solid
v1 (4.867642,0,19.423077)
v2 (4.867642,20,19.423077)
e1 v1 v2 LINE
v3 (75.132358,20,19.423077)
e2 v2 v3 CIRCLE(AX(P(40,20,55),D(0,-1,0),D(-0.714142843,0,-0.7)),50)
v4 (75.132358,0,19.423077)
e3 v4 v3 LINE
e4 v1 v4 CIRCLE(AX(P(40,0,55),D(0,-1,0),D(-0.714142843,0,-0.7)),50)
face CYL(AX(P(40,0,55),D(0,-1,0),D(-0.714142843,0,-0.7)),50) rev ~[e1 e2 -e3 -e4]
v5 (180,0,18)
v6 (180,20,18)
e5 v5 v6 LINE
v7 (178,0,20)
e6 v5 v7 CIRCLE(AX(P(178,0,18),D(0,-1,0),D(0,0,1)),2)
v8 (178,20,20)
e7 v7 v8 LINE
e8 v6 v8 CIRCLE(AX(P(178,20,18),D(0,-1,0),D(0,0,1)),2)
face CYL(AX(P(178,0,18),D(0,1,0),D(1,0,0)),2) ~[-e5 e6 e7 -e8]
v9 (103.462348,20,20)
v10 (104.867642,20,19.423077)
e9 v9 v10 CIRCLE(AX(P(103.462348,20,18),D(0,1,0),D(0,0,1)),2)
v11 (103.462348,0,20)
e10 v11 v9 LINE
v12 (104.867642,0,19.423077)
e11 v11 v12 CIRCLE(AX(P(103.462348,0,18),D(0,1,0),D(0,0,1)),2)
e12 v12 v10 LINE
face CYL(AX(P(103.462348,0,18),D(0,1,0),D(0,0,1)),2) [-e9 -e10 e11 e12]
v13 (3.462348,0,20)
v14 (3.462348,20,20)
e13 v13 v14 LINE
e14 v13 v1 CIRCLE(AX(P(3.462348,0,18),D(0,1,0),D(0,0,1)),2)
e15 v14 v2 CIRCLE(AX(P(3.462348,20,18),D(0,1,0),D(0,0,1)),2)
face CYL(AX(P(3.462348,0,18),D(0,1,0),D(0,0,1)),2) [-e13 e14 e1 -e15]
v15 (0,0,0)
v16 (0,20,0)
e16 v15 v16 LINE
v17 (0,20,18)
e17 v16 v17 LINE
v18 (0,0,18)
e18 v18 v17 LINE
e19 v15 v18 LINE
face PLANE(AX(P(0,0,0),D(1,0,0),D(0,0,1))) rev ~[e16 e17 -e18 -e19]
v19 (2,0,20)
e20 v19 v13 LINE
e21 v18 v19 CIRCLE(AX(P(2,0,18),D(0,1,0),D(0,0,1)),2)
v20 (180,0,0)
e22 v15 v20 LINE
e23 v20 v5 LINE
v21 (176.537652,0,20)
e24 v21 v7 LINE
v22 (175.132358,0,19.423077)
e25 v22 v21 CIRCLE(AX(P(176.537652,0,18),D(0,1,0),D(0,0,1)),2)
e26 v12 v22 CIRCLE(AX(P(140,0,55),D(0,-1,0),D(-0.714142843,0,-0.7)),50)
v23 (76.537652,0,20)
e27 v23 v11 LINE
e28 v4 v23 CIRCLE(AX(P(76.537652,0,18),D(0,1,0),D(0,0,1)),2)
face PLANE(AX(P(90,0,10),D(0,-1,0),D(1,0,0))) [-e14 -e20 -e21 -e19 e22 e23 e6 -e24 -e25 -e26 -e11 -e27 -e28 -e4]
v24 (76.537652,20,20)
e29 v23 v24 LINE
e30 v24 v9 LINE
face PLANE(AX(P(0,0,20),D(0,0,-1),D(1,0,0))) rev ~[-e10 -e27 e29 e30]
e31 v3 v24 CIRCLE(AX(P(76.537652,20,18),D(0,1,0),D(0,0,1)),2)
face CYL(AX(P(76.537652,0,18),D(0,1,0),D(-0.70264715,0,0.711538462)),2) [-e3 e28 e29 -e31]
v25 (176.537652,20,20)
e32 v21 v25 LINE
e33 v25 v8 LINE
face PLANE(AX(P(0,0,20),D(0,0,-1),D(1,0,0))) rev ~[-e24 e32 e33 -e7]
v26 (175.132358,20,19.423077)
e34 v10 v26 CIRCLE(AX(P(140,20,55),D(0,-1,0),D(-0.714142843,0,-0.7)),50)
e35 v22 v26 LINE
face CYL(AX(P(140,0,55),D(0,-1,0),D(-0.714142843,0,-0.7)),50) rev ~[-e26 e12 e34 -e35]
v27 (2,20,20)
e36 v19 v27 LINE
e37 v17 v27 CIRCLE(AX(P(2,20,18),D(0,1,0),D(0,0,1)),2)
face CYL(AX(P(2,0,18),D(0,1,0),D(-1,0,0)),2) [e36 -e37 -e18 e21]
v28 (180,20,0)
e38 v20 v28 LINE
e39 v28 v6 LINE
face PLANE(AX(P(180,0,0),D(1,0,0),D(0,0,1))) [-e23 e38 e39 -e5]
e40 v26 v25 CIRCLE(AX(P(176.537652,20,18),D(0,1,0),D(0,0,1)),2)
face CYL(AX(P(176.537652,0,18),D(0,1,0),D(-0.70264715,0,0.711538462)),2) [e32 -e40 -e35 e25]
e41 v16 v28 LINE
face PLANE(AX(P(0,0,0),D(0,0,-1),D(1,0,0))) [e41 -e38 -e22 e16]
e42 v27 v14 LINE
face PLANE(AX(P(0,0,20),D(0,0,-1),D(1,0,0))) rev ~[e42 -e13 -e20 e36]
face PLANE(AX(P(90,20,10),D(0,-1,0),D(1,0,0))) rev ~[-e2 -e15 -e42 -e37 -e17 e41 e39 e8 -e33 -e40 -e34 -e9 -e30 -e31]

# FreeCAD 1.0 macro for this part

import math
import FreeCAD as App
import Part
import Sketcher

V = App.Vector


def edges_at(feature, points):
    """Names of the edges that pass closest to the given points."""
    edges = feature.Shape.Edges
    near = lambda p: min(range(len(edges)), key=lambda i: edges[i].distToShape(Part.Vertex(*p))[0])
    return sorted({f"Edge{near(p) + 1}" for p in points})


def add_polygon(sketch, points):
    """Adds a closed chain of lines whose ends are joined by coincident constraints."""
    first, n = sketch.GeometryCount, len(points)
    for a, b in zip(points, points[1:] + points[:1]):
        sketch.addGeometry(Part.LineSegment(App.Vector(*a, 0), App.Vector(*b, 0)), False)
    for i in range(n):
        sketch.addConstraint(Sketcher.Constraint("Coincident", first + i, 2, first + (i + 1) % n, 1))

doc = App.newDocument("Part")
body = doc.addObject("PartDesign::Body", "Body")

sketch1 = body.newObject("Sketcher::SketchObject", "Sketch")
sketch1.AttachmentSupport = (doc.getObject("XZ_Plane"), [""])
sketch1.MapMode = "FlatFace"
add_polygon(sketch1, [(0, 20), (0, 0), (180, 0), (180, 20)])
sketch1.addConstraint([
    Sketcher.Constraint("Vertical", 0),
    Sketcher.Constraint("Horizontal", 1),
    Sketcher.Constraint("Vertical", 2),
    Sketcher.Constraint("Horizontal", 3),
    Sketcher.Constraint("Coincident", 0, 2, -1, 1),
    Sketcher.Constraint("DistanceX", 1, 1, 1, 2, 180.0),
    Sketcher.Constraint("DistanceY", 0, 2, 0, 1, 20.0),
])
pad1 = body.newObject("PartDesign::Pad", "Pad")
pad1.Profile = sketch1
pad1.Length = 20
pad1.Reversed = True

sketch2 = body.newObject("Sketcher::SketchObject", "Sketch001")
sketch2.AttachmentSupport = (doc.getObject("XZ_Plane"), [""])
sketch2.MapMode = "FlatFace"
sketch2.addGeometry([
    Part.LineSegment(V(75.707142, 20, 0), V(4.292858, 20, 0)),
    Part.ArcOfCircle(Part.Circle(V(40, 55, 0), V(0, 0, 1), 50), math.radians(-135.572996), math.radians(-44.427004)),
    Part.LineSegment(V(175.707142, 20, 0), V(104.292858, 20, 0)),
    Part.ArcOfCircle(Part.Circle(V(140, 55, 0), V(0, 0, 1), 50), math.radians(-135.572996), math.radians(-44.427004)),
], False)
sketch2.addConstraint([
    Sketcher.Constraint("Coincident", 0, 1, 1, 2),
    Sketcher.Constraint("Coincident", 1, 1, 0, 2),
    Sketcher.Constraint("Coincident", 2, 1, 3, 2),
    Sketcher.Constraint("Coincident", 3, 1, 2, 2),
    Sketcher.Constraint("Horizontal", 0),
    Sketcher.Constraint("Horizontal", 2),
    Sketcher.Constraint("Equal", 1, 3),
    Sketcher.Constraint("Horizontal", 1, 3, 3, 3),
    Sketcher.Constraint("Horizontal", 1, 1, 2, 1),
    Sketcher.Constraint("Radius", 1, 50.0),
    Sketcher.Constraint("DistanceX", -1, 1, 1, 3, 40.0),
    Sketcher.Constraint("DistanceY", -1, 1, 1, 3, 55.0),
    Sketcher.Constraint("DistanceX", -1, 1, 3, 3, 140.0),
    Sketcher.Constraint("DistanceY", -1, 1, 0, 1, 20.0),
])
pocket1 = body.newObject("PartDesign::Pocket", "Pocket")
pocket1.Profile = sketch2
pocket1.Length = 25
doc.recompute()

fillet = body.newObject("PartDesign::Fillet", "Fillet")
fillet.Base = (pocket1, edges_at(pocket1, [
    (0, 10, 20),
    (4.293, 10, 20),
    (75.707, 10, 20),
    (104.293, 10, 20),
    (175.707, 10, 20),
    (180, 10, 20),
]))
fillet.Radius = 2

doc.recompute()
